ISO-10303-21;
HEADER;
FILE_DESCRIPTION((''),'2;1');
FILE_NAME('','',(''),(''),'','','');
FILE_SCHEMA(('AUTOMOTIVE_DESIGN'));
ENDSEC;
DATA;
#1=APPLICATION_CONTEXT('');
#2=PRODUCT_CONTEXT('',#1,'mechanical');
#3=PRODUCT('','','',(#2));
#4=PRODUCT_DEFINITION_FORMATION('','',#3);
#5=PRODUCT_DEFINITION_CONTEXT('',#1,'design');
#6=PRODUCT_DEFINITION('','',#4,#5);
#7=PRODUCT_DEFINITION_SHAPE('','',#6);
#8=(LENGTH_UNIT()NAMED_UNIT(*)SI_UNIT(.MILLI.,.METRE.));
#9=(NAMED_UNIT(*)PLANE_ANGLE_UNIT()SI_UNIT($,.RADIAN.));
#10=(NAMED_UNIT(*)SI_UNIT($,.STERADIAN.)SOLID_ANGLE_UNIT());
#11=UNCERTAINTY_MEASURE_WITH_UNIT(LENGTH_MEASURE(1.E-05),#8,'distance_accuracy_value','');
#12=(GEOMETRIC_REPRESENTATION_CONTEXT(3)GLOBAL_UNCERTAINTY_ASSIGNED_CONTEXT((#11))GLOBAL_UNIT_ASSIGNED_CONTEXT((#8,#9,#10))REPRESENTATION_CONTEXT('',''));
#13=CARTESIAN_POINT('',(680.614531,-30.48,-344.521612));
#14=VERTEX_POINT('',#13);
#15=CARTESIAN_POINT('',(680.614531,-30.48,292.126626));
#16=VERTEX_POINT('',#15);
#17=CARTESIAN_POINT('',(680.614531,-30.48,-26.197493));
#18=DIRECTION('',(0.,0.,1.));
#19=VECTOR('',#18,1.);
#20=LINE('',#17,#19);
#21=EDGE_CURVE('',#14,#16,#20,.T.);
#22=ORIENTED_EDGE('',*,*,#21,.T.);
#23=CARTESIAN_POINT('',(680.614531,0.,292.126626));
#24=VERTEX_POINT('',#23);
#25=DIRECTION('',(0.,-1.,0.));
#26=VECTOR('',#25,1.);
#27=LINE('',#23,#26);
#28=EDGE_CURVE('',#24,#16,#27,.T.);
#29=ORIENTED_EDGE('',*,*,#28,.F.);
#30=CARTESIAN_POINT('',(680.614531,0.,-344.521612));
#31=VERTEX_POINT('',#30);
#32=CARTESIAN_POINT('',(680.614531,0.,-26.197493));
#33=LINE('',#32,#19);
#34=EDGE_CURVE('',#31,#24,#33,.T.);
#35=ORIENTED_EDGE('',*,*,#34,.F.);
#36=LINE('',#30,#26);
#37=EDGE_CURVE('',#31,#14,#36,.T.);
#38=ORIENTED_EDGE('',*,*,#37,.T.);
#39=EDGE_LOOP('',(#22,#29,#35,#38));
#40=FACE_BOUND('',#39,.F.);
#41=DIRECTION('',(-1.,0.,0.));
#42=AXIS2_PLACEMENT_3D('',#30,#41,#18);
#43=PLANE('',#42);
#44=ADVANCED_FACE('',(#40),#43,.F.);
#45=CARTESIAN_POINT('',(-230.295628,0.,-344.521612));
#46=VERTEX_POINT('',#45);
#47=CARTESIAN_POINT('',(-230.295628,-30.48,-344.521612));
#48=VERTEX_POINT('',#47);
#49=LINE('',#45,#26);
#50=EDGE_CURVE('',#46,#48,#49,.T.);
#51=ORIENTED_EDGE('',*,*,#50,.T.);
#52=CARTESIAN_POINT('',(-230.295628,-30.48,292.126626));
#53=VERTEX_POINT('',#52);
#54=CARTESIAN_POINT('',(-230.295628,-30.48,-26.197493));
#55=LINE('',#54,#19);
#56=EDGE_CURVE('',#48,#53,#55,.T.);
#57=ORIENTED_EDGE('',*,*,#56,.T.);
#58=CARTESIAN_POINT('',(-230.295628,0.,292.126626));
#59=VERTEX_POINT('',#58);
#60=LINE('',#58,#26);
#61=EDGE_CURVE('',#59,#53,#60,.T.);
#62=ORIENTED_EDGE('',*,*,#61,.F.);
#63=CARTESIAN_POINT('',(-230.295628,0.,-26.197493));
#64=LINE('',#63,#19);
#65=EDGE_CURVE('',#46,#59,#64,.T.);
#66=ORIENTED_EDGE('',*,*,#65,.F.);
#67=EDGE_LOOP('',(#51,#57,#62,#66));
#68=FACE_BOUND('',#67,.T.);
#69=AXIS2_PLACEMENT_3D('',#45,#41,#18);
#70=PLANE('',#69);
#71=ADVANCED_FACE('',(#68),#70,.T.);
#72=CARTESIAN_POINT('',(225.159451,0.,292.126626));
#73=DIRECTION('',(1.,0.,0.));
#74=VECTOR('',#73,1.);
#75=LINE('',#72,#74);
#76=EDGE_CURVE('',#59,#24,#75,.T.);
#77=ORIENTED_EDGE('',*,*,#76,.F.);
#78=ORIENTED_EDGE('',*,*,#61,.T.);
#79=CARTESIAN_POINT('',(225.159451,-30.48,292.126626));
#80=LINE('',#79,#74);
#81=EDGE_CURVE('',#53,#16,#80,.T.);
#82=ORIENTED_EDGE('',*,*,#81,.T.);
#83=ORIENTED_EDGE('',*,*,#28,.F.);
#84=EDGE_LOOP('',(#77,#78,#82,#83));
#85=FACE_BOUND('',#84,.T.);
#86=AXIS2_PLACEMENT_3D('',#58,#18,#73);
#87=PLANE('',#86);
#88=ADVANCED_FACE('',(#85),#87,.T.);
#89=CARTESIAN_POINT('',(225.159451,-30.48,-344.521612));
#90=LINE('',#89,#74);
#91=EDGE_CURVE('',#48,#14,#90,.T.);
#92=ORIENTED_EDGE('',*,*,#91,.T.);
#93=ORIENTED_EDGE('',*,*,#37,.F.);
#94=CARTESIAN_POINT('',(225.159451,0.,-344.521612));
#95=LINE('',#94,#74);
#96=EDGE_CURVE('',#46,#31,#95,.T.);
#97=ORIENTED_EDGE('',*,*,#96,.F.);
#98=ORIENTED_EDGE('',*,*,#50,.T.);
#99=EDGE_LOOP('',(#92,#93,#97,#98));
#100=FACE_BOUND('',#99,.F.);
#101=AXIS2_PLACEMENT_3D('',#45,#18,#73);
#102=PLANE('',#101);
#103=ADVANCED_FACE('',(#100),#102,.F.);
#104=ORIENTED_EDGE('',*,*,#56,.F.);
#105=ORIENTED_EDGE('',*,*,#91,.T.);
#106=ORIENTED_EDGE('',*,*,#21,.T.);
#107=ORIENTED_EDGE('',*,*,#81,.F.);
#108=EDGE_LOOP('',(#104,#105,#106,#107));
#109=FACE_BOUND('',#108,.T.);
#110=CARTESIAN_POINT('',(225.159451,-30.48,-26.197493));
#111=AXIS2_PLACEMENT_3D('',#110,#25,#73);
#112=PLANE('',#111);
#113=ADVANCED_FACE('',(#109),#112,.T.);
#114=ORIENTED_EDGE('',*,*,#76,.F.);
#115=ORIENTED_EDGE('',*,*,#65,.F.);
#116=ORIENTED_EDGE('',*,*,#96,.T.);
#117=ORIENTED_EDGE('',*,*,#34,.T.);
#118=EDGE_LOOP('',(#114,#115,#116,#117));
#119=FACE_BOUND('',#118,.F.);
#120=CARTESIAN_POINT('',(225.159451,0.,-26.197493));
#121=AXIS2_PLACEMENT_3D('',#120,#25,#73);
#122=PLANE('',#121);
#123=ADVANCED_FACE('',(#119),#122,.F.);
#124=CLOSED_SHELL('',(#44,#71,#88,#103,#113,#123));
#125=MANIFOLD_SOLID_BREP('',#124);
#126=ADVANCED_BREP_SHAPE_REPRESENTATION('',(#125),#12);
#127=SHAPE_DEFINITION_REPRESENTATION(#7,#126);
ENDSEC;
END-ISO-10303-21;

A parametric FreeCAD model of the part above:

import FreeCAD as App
import Part
import Sketcher

V = App.Vector
Q = App.Units.Quantity


def add_polygon(sketch, points):
    """Adds a closed chain of lines whose ends are joined by coincident constraints."""
    first, n = sketch.GeometryCount, len(points)
    for a, b in zip(points, points[1:] + points[:1]):
        sketch.addGeometry(Part.LineSegment(App.Vector(*a, 0), App.Vector(*b, 0)), False)
    for i in range(n):
        sketch.addConstraint(Sketcher.Constraint("Coincident", first + i, 2, first + (i + 1) % n, 1))

doc = App.newDocument("Part")
params = doc.addObject("Spreadsheet::Sheet", "Params")
for row, (alias, value) in enumerate([
    ("pad1_length", "1.2 in"),
    ("pad2_length", "1.2 in"),
], start=1):
    params.set(f"A{row}", alias)
    params.set(f"B{row}", "=" + value)
    params.setAlias(f"B{row}", alias)

body = doc.addObject("PartDesign::Body", "Body")

# Sketch on XZ plane
sketch1 = doc.addObject("Sketcher::SketchObject", "Sketch")
body.addObject(sketch1)
sketch1.AttachmentSupport = (doc.XZ_Plane, [""])
sketch1.MapMode = "FlatFace"
add_polygon(sketch1, [(-58.340624, -60.088209), (65.633222, -60.088209), (65.633222, 54.635613), (-58.340624, 54.635613)])  # lines 0-3
sketch1.addConstraint([
    Sketcher.Constraint("Horizontal", 0),
    Sketcher.Constraint("Vertical", 1),
    Sketcher.Constraint("Horizontal", 2),
    Sketcher.Constraint("Vertical", 3),
    Sketcher.Constraint("DistanceX", 2, 2, -1, 1, Q("2.296875 in")),
    Sketcher.Constraint("DistanceX", 0, 1, 0, 2, Q("123.973846 mm")),
    Sketcher.Constraint("DistanceY", 1, 1, 1, 2, Q("114.723823 mm")),
    Sketcher.Constraint("DistanceY", 0, 2, -1, 1, Q("60.088209 mm")),
])
pad1 = doc.addObject("PartDesign::Pad", "Pad")
body.addObject(pad1)
pad1.Profile = sketch1
pad1.setExpression("Length", "Params.pad1_length")

# Sketch on XZ plane
sketch2 = doc.addObject("Sketcher::SketchObject", "Sketch001")
body.addObject(sketch2)
sketch2.AttachmentSupport = (doc.XZ_Plane, [""])
sketch2.MapMode = "FlatFace"
add_polygon(sketch2, [(-230.295628, 292.126626), (-230.295628, -344.521612), (680.614531, -344.521612), (680.614531, 292.126626)])  # lines 0-3
sketch2.addConstraint([
    Sketcher.Constraint("Vertical", 0),
    Sketcher.Constraint("Horizontal", 1),
    Sketcher.Constraint("Vertical", 2),
    Sketcher.Constraint("Horizontal", 3),
    Sketcher.Constraint("DistanceX", 1, 1, 1, 2, Q("910.910159 mm")),
    Sketcher.Constraint("DistanceY", 0, 2, 0, 1, Q("636.648238 mm")),
    Sketcher.Constraint("DistanceX", 0, 2, -1, 1, Q("230.295628 mm")),
    Sketcher.Constraint("DistanceY", 0, 2, -1, 1, Q("344.521612 mm")),
])
pad2 = doc.addObject("PartDesign::Pad", "Pad001")
body.addObject(pad2)
pad2.Profile = sketch2
pad2.setExpression("Length", "Params.pad2_length")

doc.recompute()
